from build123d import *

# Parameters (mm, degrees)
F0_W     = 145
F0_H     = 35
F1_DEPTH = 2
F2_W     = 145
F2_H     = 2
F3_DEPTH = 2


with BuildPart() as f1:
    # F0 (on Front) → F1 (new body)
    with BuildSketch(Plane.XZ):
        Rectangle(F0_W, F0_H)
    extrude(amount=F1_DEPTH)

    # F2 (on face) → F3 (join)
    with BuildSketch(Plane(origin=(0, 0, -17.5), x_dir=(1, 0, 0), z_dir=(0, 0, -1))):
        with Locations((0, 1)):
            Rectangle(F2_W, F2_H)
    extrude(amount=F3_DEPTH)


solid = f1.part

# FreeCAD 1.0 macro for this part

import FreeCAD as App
import Part
import Sketcher
from FreeCAD import Vector


def add_polygon(sketch, points):
    """Adds a closed chain of lines whose ends are joined by coincident constraints."""
    first, n = sketch.GeometryCount, len(points)
    for a, b in zip(points, points[1:] + points[:1]):
        sketch.addGeometry(Part.LineSegment(App.Vector(*a, 0), App.Vector(*b, 0)), False)
    for i in range(n):
        sketch.addConstraint(Sketcher.Constraint("Coincident", first + i, 2, first + (i + 1) % n, 1))

doc = App.newDocument("Part")
params = doc.addObject("Spreadsheet::Sheet", "Params")
for row, (alias, value) in enumerate([
    ("sketch1_width", "145 mm"),
    ("sketch1_height", "35 mm"),
    ("pad1_length", "2 mm"),
    ("sketch2_width", "145 mm"),
    ("sketch2_height", "2 mm"),
    ("pad2_length", "2 mm"),
], start=1):
    params.set(f"A{row}", alias)
    params.set(f"B{row}", "=" + value)
    params.setAlias(f"B{row}", alias)

body = doc.addObject("PartDesign::Body", "Body")

sketch1 = body.newObject("Sketcher::SketchObject", "Sketch")
sketch1.AttachmentSupport = (doc.getObject("XZ_Plane"), [""])
sketch1.MapMode = "FlatFace"
add_polygon(sketch1, [(-72, 18), (-72, -18), (72, -18), (72, 18)])
sketch1.addConstraint([
    Sketcher.Constraint("Vertical", 0),
    Sketcher.Constraint("Horizontal", 1),
    Sketcher.Constraint("Vertical", 2),
    Sketcher.Constraint("Horizontal", 3),
    Sketcher.Constraint("Symmetric", 0, 2, 2, 2, -1, 1),
    Sketcher.Constraint("DistanceX", 1, 1, 1, 2, 145.0),
    Sketcher.Constraint("DistanceY", 0, 2, 0, 1, 35.0),
])
sketch1.setExpression("Constraints[9]", "Params.sketch1_width")
sketch1.setExpression("Constraints[10]", "Params.sketch1_height")
pad1 = body.newObject("PartDesign::Pad", "Pad")
pad1.Profile = sketch1
pad1.setExpression("Length", "Params.pad1_length")

sketch2 = body.newObject("Sketcher::SketchObject", "Sketch001")
sketch2.AttachmentSupport = (doc.getObject("XY_Plane"), [""])
sketch2.MapMode = "FlatFace"
sketch2.AttachmentOffset = App.Placement(Vector(0, 0, -17.5), App.Rotation())
add_polygon(sketch2, [(-72.5, -2), (-72.5, 0), (72.5, 0), (72.5, -2)])
sketch2.addConstraint([
    Sketcher.Constraint("Vertical", 0),
    Sketcher.Constraint("Horizontal", 1),
    Sketcher.Constraint("Vertical", 2),
    Sketcher.Constraint("Horizontal", 3),
    Sketcher.Constraint("Symmetric", 0, 2, 1, 2, -1, 1),
    Sketcher.Constraint("DistanceX", 1, 1, 1, 2, 145.0),
    Sketcher.Constraint("DistanceY", 0, 1, 0, 2, 2.0),
])
sketch2.setExpression("Constraints[9]", "Params.sketch2_width")
sketch2.setExpression("Constraints[10]", "Params.sketch2_height")
pad2 = body.newObject("PartDesign::Pad", "Pad001")
pad2.Profile = sketch2
pad2.setExpression("Length", "Params.pad2_length")
pad2.Reversed = True

doc.recompute()
